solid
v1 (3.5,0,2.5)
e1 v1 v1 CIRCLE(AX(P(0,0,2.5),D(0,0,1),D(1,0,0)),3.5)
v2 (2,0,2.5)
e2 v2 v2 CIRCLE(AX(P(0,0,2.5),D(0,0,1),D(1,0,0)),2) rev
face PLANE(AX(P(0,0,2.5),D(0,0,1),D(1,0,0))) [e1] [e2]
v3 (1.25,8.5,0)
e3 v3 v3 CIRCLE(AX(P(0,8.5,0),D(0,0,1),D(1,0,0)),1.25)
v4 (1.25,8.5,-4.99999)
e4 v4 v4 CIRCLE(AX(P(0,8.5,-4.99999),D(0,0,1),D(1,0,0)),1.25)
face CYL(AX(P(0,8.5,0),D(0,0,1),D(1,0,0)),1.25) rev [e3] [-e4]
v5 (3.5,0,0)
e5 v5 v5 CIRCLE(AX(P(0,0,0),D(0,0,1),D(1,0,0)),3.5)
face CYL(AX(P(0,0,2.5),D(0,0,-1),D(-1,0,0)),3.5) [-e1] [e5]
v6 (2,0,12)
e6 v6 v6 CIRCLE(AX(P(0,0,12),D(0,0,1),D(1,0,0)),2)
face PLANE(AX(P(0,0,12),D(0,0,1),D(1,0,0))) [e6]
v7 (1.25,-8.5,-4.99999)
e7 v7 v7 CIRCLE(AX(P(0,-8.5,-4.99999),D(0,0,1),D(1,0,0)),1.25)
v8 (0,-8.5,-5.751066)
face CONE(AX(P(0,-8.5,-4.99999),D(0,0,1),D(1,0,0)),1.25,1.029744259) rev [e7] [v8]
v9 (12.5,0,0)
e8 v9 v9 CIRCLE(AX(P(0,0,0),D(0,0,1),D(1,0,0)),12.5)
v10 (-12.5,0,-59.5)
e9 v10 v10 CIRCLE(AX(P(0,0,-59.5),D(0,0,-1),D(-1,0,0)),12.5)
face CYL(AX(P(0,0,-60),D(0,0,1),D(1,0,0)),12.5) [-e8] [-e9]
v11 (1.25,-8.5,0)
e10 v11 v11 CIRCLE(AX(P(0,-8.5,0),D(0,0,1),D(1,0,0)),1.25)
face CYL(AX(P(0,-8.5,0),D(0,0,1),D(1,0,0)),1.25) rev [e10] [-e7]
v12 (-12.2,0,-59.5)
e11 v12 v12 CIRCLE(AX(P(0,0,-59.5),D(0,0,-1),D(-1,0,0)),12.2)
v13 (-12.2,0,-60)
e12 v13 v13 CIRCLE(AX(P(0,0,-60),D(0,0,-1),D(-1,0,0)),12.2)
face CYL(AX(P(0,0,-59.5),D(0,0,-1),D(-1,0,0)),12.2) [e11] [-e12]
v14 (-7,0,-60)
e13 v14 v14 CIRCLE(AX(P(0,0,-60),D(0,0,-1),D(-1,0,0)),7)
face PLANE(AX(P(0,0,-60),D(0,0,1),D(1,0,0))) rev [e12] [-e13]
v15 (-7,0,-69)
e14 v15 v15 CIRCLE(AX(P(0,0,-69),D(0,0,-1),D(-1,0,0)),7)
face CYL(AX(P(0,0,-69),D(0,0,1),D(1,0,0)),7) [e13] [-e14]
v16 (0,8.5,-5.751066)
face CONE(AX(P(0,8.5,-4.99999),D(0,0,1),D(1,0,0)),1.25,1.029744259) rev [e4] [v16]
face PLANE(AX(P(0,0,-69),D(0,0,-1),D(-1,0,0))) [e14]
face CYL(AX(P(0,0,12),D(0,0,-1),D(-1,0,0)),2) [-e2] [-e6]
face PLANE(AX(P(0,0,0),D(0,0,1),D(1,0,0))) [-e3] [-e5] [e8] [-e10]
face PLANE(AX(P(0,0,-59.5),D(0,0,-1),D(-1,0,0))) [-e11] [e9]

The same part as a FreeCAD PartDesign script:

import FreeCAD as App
import Part
import Sketcher

doc = App.newDocument("Part")
params = doc.addObject("Spreadsheet::Sheet", "Params")
for row, (alias, value) in enumerate([
    ("sketch1_diameter", "25 mm"),
    ("pad1_length", "60 mm"),
    ("sketch2_diameter", "7 mm"),
    ("pad2_length", "2.5 mm"),
    ("sketch3_diameter", "4 mm"),
    ("pad3_length", "12 mm"),
    ("sketch4_diameter", "2.5 mm"),
    ("hole_diameter", "2.5 mm"),
    ("hole_depth", "4.99999 mm"),
    ("sketch5_diameter", "25 mm"),
    ("sketch5_diameter2", "24.4 mm"),
    ("pocket1_length", "0.5 mm"),
    ("sketch6_diameter", "14 mm"),
    ("pad4_length", "9 mm"),
], start=1):
    params.set(f"A{row}", alias)
    params.set(f"B{row}", "=" + value)
    params.setAlias(f"B{row}", alias)

body = doc.addObject("PartDesign::Body", "Body")

sketch1 = body.newObject("Sketcher::SketchObject", "Sketch")
sketch1.AttachmentSupport = (doc.getObject("XY_Plane"), [""])
sketch1.MapMode = "FlatFace"
sketch1.addGeometry(Part.Circle(App.Vector(0, 0, 0), App.Vector(0, 0, 1), 12.5), False)
sketch1.addConstraint(Sketcher.Constraint("Coincident", 0, 3, -1, 1))
sketch1.addConstraint(Sketcher.Constraint("Diameter", 0, 25.0))
sketch1.setExpression("Constraints[1]", "Params.sketch1_diameter")
pad1 = body.newObject("PartDesign::Pad", "Pad")
pad1.Profile = sketch1
pad1.setExpression("Length", "Params.pad1_length")
pad1.Reversed = True

sketch2 = body.newObject("Sketcher::SketchObject", "Sketch001")
sketch2.AttachmentSupport = (doc.getObject("XY_Plane"), [""])
sketch2.MapMode = "FlatFace"
sketch2.addGeometry(Part.Circle(App.Vector(0, 0, 0), App.Vector(0, 0, 1), 3.5), False)
sketch2.addConstraint(Sketcher.Constraint("Coincident", 0, 3, -1, 1))
sketch2.addConstraint(Sketcher.Constraint("Diameter", 0, 7.0))
sketch2.setExpression("Constraints[1]", "Params.sketch2_diameter")
pad2 = body.newObject("PartDesign::Pad", "Pad001")
pad2.Profile = sketch2
pad2.setExpression("Length", "Params.pad2_length")

sketch3 = body.newObject("Sketcher::SketchObject", "Sketch002")
sketch3.AttachmentSupport = (doc.getObject("XY_Plane"), [""])
sketch3.MapMode = "FlatFace"
sketch3.addGeometry(Part.Circle(App.Vector(0, 0, 0), App.Vector(0, 0, 1), 2), False)
sketch3.addConstraint(Sketcher.Constraint("Coincident", 0, 3, -1, 1))
sketch3.addConstraint(Sketcher.Constraint("Diameter", 0, 4.0))
sketch3.setExpression("Constraints[1]", "Params.sketch3_diameter")
pad3 = body.newObject("PartDesign::Pad", "Pad002")
pad3.Profile = sketch3
pad3.setExpression("Length", "Params.pad3_length")

sketch4 = body.newObject("Sketcher::SketchObject", "Sketch003")
sketch4.AttachmentSupport = (doc.getObject("XY_Plane"), [""])
sketch4.MapMode = "FlatFace"
sketch4.addGeometry(Part.Circle(App.Vector(0, 8.5, 0), App.Vector(0, 0, 1), 1.25), False)
sketch4.addGeometry(Part.Circle(App.Vector(0, -8.5, 0), App.Vector(0, 0, 1), 1.25), False)
sketch4.addConstraint(Sketcher.Constraint("Equal", 0, 1))
sketch4.addConstraint(Sketcher.Constraint("Symmetric", 0, 3, 1, 3, -1, 1))
sketch4.addConstraint(Sketcher.Constraint("PointOnObject", 0, 3, -2))
sketch4.addConstraint(Sketcher.Constraint("Diameter", 0, 2.5))
sketch4.addConstraint(Sketcher.Constraint("DistanceY", 1, 3, 0, 3, 17.0))
sketch4.setExpression("Constraints[3]", "Params.sketch4_diameter")
doc.recompute()
hole = body.newObject("PartDesign::Hole", "Hole")
hole.Profile = sketch4
hole.ThreadType = "None"
hole.setExpression("Diameter", "Params.hole_diameter")
hole.DepthType = "Dimension"
hole.setExpression("Depth", "Params.hole_depth")
hole.DrillPoint = "Angled"
hole.DrillPointAngle = 118

sketch5 = body.newObject("Sketcher::SketchObject", "Sketch004")
sketch5.AttachmentSupport = (doc.getObject("XY_Plane"), [""])
sketch5.MapMode = "FlatFace"
sketch5.AttachmentOffset = App.Placement(App.Vector(0, 0, -59.5), App.Rotation())
sketch5.addGeometry(Part.Circle(App.Vector(0, 0, 0), App.Vector(0, 0, 1), 12.5), False)
sketch5.addGeometry(Part.Circle(App.Vector(0, 0, 0), App.Vector(0, 0, 1), 12.2), False)
sketch5.addConstraint(Sketcher.Constraint("Coincident", 0, 3, -1, 1))
sketch5.addConstraint(Sketcher.Constraint("Coincident", 1, 3, -1, 1))
sketch5.addConstraint(Sketcher.Constraint("Diameter", 0, 25.0))
sketch5.addConstraint(Sketcher.Constraint("Diameter", 1, 24.4))
sketch5.setExpression("Constraints[2]", "Params.sketch5_diameter")
sketch5.setExpression("Constraints[3]", "Params.sketch5_diameter2")
pocket1 = body.newObject("PartDesign::Pocket", "Pocket")
pocket1.Profile = sketch5
pocket1.setExpression("Length", "Params.pocket1_length")

sketch6 = body.newObject("Sketcher::SketchObject", "Sketch005")
sketch6.AttachmentSupport = (doc.getObject("XY_Plane"), [""])
sketch6.MapMode = "FlatFace"
sketch6.AttachmentOffset = App.Placement(App.Vector(0, 0, -60), App.Rotation())
sketch6.addGeometry(Part.Circle(App.Vector(0, 0, 0), App.Vector(0, 0, 1), 7), False)
sketch6.addConstraint(Sketcher.Constraint("Coincident", 0, 3, -1, 1))
sketch6.addConstraint(Sketcher.Constraint("Diameter", 0, 14.0))
sketch6.setExpression("Constraints[1]", "Params.sketch6_diameter")
pad4 = body.newObject("PartDesign::Pad", "Pad003")
pad4.Profile = sketch6
pad4.setExpression("Length", "Params.pad4_length")
pad4.Reversed = True

doc.recompute()
